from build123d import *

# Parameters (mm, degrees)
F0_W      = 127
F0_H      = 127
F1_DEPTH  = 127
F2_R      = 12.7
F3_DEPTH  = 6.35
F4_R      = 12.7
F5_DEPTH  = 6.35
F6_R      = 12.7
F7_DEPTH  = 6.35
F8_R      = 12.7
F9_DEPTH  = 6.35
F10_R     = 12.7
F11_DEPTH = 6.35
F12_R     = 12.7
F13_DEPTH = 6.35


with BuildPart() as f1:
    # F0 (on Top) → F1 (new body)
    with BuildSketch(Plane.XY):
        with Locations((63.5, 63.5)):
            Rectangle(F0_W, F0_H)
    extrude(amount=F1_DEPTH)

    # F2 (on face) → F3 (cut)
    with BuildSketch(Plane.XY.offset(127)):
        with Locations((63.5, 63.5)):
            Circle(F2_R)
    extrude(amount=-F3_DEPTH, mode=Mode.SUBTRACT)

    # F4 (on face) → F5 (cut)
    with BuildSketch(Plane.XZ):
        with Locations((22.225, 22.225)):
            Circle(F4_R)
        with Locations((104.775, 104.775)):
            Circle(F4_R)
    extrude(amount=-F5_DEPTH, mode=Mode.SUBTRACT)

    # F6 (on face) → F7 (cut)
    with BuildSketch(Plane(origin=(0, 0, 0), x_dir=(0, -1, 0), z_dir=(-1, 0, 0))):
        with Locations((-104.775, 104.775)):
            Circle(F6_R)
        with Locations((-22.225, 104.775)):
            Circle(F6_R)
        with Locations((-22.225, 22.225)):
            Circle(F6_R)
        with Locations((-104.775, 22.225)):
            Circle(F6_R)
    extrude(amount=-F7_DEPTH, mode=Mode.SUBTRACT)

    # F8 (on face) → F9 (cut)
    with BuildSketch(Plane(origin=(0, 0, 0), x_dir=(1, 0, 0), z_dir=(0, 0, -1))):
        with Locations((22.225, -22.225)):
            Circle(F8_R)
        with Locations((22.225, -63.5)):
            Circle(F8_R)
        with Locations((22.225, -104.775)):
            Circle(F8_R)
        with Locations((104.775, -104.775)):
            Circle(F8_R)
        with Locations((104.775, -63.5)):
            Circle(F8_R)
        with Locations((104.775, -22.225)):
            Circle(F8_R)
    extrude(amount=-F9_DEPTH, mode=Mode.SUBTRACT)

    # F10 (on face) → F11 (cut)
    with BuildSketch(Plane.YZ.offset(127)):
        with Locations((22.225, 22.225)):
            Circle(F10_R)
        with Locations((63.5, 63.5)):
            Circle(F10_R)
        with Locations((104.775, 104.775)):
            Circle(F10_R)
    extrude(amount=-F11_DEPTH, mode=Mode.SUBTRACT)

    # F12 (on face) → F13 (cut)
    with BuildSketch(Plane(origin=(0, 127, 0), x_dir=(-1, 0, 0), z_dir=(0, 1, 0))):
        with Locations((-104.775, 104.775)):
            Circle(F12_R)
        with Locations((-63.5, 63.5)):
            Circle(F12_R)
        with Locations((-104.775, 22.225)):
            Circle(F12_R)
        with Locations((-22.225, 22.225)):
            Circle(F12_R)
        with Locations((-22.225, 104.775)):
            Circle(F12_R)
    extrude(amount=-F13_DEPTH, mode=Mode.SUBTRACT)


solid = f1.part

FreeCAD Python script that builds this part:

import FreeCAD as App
import Part
import Sketcher
from FreeCAD import Vector
Q = App.Units.Quantity


def add_polygon(sketch, points):
    """Adds a closed chain of lines whose ends are joined by coincident constraints."""
    first, n = sketch.GeometryCount, len(points)
    for a, b in zip(points, points[1:] + points[:1]):
        sketch.addGeometry(Part.LineSegment(App.Vector(*a, 0), App.Vector(*b, 0)), False)
    for i in range(n):
        sketch.addConstraint(Sketcher.Constraint("Coincident", first + i, 2, first + (i + 1) % n, 1))

doc = App.newDocument("Part")
body = doc.addObject("PartDesign::Body", "Body")

# Sketch on XY plane
sketch1 = body.newObject("Sketcher::SketchObject", "Sketch")
sketch1.AttachmentSupport = (doc.getObject("XY_Plane"), [""])
sketch1.MapMode = "FlatFace"
add_polygon(sketch1, [(0, 127), (0, 0), (127, 0), (127, 127)])  # lines 0-3
sketch1.addConstraint([
    Sketcher.Constraint("Vertical", 0),
    Sketcher.Constraint("Horizontal", 1),
    Sketcher.Constraint("Vertical", 2),
    Sketcher.Constraint("Horizontal", 3),
    Sketcher.Constraint("Coincident", 0, 2, -1, 1),
    Sketcher.Constraint("Equal", 3, 0),
    Sketcher.Constraint("DistanceX", 1, 1, 1, 2, Q("5 in")),
])
pad1 = body.newObject("PartDesign::Pad", "Pad")
pad1.Profile = sketch1
pad1.Length = Q("5 in")

# Sketch on XY plane
sketch2 = body.newObject("Sketcher::SketchObject", "Sketch001")
sketch2.AttachmentSupport = (doc.getObject("XY_Plane"), [""])
sketch2.MapMode = "FlatFace"
sketch2.AttachmentOffset = App.Placement(Vector(0, 0, 5 * 25.4), App.Rotation())
sketch2.addGeometry(Part.Circle(Vector(64, 64, 0), Vector(0, 0, 1), 13), False)
sketch2.addConstraint([
    Sketcher.Constraint("Diameter", 0, Q("1 in")),
    Sketcher.Constraint("DistanceX", -1, 1, 0, 3, Q("2.5 in")),
    Sketcher.Constraint("DistanceY", -1, 1, 0, 3, Q("2.5 in")),
])
pocket1 = body.newObject("PartDesign::Pocket", "Pocket")
pocket1.Profile = sketch2
pocket1.Length = Q("0.25 in")

# Sketch on XZ plane
sketch3 = body.newObject("Sketcher::SketchObject", "Sketch002")
sketch3.AttachmentSupport = (doc.getObject("XZ_Plane"), [""])
sketch3.MapMode = "FlatFace"
sketch3.addGeometry([
    Part.Circle(Vector(22, 22, 0), Vector(0, 0, 1), 13),
    Part.Circle(Vector(105, 105, 0), Vector(0, 0, 1), 13),
], False)
sketch3.addConstraint([
    Sketcher.Constraint("Equal", 0, 1),
    Sketcher.Constraint("Diameter", 0, Q("1 in")),
    Sketcher.Constraint("DistanceX", 0, 3, 1, 3, Q("3.25 in")),
    Sketcher.Constraint("DistanceY", 0, 3, 1, 3, Q("3.25 in")),
    Sketcher.Constraint("DistanceX", -1, 1, 0, 3, Q("0.875 in")),
    Sketcher.Constraint("DistanceY", -1, 1, 0, 3, Q("0.875 in")),
])
pocket2 = body.newObject("PartDesign::Pocket", "Pocket001")
pocket2.Profile = sketch3
pocket2.Length = Q("0.25 in")

# Sketch on YZ plane
sketch4 = body.newObject("Sketcher::SketchObject", "Sketch003")
sketch4.AttachmentSupport = (doc.getObject("YZ_Plane"), [""])
sketch4.MapMode = "FlatFace"
sketch4.addGeometry([
    Part.Circle(Vector(105, 105, 0), Vector(0, 0, 1), 13),
    Part.Circle(Vector(22, 105, 0), Vector(0, 0, 1), 13),
    Part.Circle(Vector(22, 22, 0), Vector(0, 0, 1), 13),
    Part.Circle(Vector(105, 22, 0), Vector(0, 0, 1), 13),
], False)
sketch4.addConstraint([
    Sketcher.Constraint("Equal", 0, 1),
    Sketcher.Constraint("Equal", 1, 2),
    Sketcher.Constraint("Equal", 2, 3),
    Sketcher.Constraint("Horizontal", 0, 3, 1, 3),
    Sketcher.Constraint("Horizontal", 2, 3, 3, 3),
    Sketcher.Constraint("Vertical", 1, 3, 2, 3),
    Sketcher.Constraint("Vertical", 0, 3, 3, 3),
    Sketcher.Constraint("Diameter", 0, Q("1 in")),
    Sketcher.Constraint("DistanceX", 1, 3, 0, 3, Q("3.25 in")),
    Sketcher.Constraint("DistanceY", 2, 3, 1, 3, Q("3.25 in")),
    Sketcher.Constraint("DistanceX", -1, 1, 0, 3, Q("4.125 in")),
    Sketcher.Constraint("DistanceY", -1, 1, 0, 3, Q("4.125 in")),
])
pocket3 = body.newObject("PartDesign::Pocket", "Pocket002")
pocket3.Profile = sketch4
pocket3.Length = Q("0.25 in")
pocket3.Reversed = True

# Sketch on XY plane
sketch5 = body.newObject("Sketcher::SketchObject", "Sketch004")
sketch5.AttachmentSupport = (doc.getObject("XY_Plane"), [""])
sketch5.MapMode = "FlatFace"
sketch5.addGeometry([
    Part.Circle(Vector(22, 22, 0), Vector(0, 0, 1), 13),  # 0
    Part.Circle(Vector(22, 64, 0), Vector(0, 0, 1), 13),  # 1
    Part.Circle(Vector(22, 105, 0), Vector(0, 0, 1), 13),  # 2
    Part.Circle(Vector(105, 105, 0), Vector(0, 0, 1), 13),  # 3
    Part.Circle(Vector(105, 64, 0), Vector(0, 0, 1), 13),  # 4
    Part.Circle(Vector(105, 22, 0), Vector(0, 0, 1), 13),  # 5
], False)
sketch5.addConstraint([
    Sketcher.Constraint("Equal", 0, 1),
    Sketcher.Constraint("Equal", 1, 2),
    Sketcher.Constraint("Equal", 2, 3),
    Sketcher.Constraint("Equal", 3, 4),
    Sketcher.Constraint("Equal", 4, 5),
    Sketcher.Constraint("Horizontal", 2, 3, 3, 3),
    Sketcher.Constraint("Horizontal", 1, 3, 4, 3),
    Sketcher.Constraint("Horizontal", 0, 3, 5, 3),
    Sketcher.Constraint("Vertical", 0, 3, 1, 3),
    Sketcher.Constraint("Vertical", 1, 3, 2, 3),
    Sketcher.Constraint("Vertical", 3, 3, 4, 3),
    Sketcher.Constraint("Vertical", 4, 3, 5, 3),
    Sketcher.Constraint("Diameter", 0, Q("1 in")),
    Sketcher.Constraint("DistanceY", -1, 1, 1, 3, Q("2.5 in")),
    Sketcher.Constraint("DistanceY", 0, 3, 2, 3, Q("3.25 in")),
    Sketcher.Constraint("DistanceX", 2, 3, 3, 3, Q("3.25 in")),
    Sketcher.Constraint("DistanceX", -1, 1, 0, 3, Q("0.875 in")),
    Sketcher.Constraint("DistanceY", -1, 1, 0, 3, Q("0.875 in")),
])
pocket4 = body.newObject("PartDesign::Pocket", "Pocket003")
pocket4.Profile = sketch5
pocket4.Length = Q("0.25 in")
pocket4.Reversed = True

# Sketch on YZ plane
sketch6 = body.newObject("Sketcher::SketchObject", "Sketch005")
sketch6.AttachmentSupport = (doc.getObject("YZ_Plane"), [""])
sketch6.MapMode = "FlatFace"
sketch6.AttachmentOffset = App.Placement(Vector(0, 0, 5 * 25.4), App.Rotation())
sketch6.addGeometry([
    Part.Circle(Vector(22, 22, 0), Vector(0, 0, 1), 13),
    Part.Circle(Vector(64, 64, 0), Vector(0, 0, 1), 13),
    Part.Circle(Vector(105, 105, 0), Vector(0, 0, 1), 13),
], False)
sketch6.addConstraint([
    Sketcher.Constraint("Equal", 0, 1),
    Sketcher.Constraint("Equal", 1, 2),
    Sketcher.Constraint("Diameter", 0, Q("1 in")),
    Sketcher.Constraint("DistanceX", -1, 1, 1, 3, Q("2.5 in")),
    Sketcher.Constraint("DistanceY", -1, 1, 1, 3, Q("2.5 in")),
    Sketcher.Constraint("DistanceX", 0, 3, 2, 3, Q("3.25 in")),
    Sketcher.Constraint("DistanceY", 0, 3, 2, 3, Q("3.25 in")),
    Sketcher.Constraint("DistanceX", -1, 1, 0, 3, Q("0.875 in")),
    Sketcher.Constraint("DistanceY", -1, 1, 0, 3, Q("0.875 in")),
])
pocket5 = body.newObject("PartDesign::Pocket", "Pocket004")
pocket5.Profile = sketch6
pocket5.Length = Q("0.25 in")

# Sketch on XZ plane
sketch7 = body.newObject("Sketcher::SketchObject", "Sketch006")
sketch7.AttachmentSupport = (doc.getObject("XZ_Plane"), [""])
sketch7.MapMode = "FlatFace"
sketch7.AttachmentOffset = App.Placement(Vector(0, 0, -5 * 25.4), App.Rotation())
sketch7.addGeometry([
    Part.Circle(Vector(105, 105, 0), Vector(0, 0, 1), 13),  # 0
    Part.Circle(Vector(64, 64, 0), Vector(0, 0, 1), 13),  # 1
    Part.Circle(Vector(105, 22, 0), Vector(0, 0, 1), 13),  # 2
    Part.Circle(Vector(22, 22, 0), Vector(0, 0, 1), 13),  # 3
    Part.Circle(Vector(22, 105, 0), Vector(0, 0, 1), 13),  # 4
], False)
sketch7.addConstraint([
    Sketcher.Constraint("Equal", 0, 1),
    Sketcher.Constraint("Equal", 1, 2),
    Sketcher.Constraint("Equal", 2, 3),
    Sketcher.Constraint("Equal", 3, 4),
    Sketcher.Constraint("Horizontal", 2, 3, 3, 3),
    Sketcher.Constraint("Horizontal", 0, 3, 4, 3),
    Sketcher.Constraint("Vertical", 0, 3, 2, 3),
    Sketcher.Constraint("Vertical", 3, 3, 4, 3),
    Sketcher.Constraint("Diameter", 0, Q("1 in")),
    Sketcher.Constraint("DistanceX", -1, 1, 1, 3, Q("2.5 in")),
    Sketcher.Constraint("DistanceY", -1, 1, 1, 3, Q("2.5 in")),
    Sketcher.Constraint("DistanceY", 2, 3, 0, 3, Q("3.25 in")),
    Sketcher.Constraint("DistanceX", 3, 3, 2, 3, Q("3.25 in")),
    Sketcher.Constraint("DistanceX", -1, 1, 0, 3, Q("4.125 in")),
    Sketcher.Constraint("DistanceY", -1, 1, 0, 3, Q("4.125 in")),
])
pocket6 = body.newObject("PartDesign::Pocket", "Pocket005")
pocket6.Profile = sketch7
pocket6.Length = Q("0.25 in")
pocket6.Reversed = True

doc.recompute()
